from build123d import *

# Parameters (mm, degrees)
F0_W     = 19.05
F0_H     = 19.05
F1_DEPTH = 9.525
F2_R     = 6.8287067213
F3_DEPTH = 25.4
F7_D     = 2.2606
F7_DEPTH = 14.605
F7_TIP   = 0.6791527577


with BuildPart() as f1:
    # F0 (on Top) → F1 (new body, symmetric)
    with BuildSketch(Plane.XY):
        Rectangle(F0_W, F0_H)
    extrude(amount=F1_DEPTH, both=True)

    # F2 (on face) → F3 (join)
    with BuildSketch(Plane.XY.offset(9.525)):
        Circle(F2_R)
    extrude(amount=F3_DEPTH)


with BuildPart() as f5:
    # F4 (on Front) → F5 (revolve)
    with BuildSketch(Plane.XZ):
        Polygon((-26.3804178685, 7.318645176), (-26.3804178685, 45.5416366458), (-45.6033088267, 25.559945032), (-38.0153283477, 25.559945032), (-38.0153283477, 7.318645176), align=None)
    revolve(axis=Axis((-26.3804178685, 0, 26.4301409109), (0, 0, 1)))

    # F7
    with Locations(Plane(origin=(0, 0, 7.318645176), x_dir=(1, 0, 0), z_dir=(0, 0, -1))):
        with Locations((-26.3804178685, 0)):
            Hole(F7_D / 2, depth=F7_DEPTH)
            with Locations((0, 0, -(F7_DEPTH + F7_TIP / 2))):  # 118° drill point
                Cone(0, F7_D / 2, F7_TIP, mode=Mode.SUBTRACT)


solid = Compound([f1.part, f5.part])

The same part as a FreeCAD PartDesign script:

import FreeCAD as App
import Part
import Sketcher

V = App.Vector
Q = App.Units.Quantity


def add_polygon(sketch, points):
    """Adds a closed chain of lines whose ends are joined by coincident constraints."""
    first, n = sketch.GeometryCount, len(points)
    for a, b in zip(points, points[1:] + points[:1]):
        sketch.addGeometry(Part.LineSegment(App.Vector(*a, 0), App.Vector(*b, 0)), False)
    for i in range(n):
        sketch.addConstraint(Sketcher.Constraint("Coincident", first + i, 2, first + (i + 1) % n, 1))

doc = App.newDocument("Part")
params = doc.addObject("Spreadsheet::Sheet", "Params")
for row, (alias, value) in enumerate([
    ("sketch1_width", "0.75 in"),
    ("pad1_length", "0.75 in"),
    ("pad2_length", "1 in"),
    ("revolution_angle", "360 deg"),
    ("sketch4_diameter", "0.089 in"),
    ("hole_diameter", "0.089 in"),
    ("hole_depth", "0.575 in"),
], start=1):
    params.set(f"A{row}", alias)
    params.set(f"B{row}", "=" + value)
    params.setAlias(f"B{row}", alias)

body = doc.addObject("PartDesign::Body", "Body")

# Sketch on XY plane
sketch1 = body.newObject("Sketcher::SketchObject", "Sketch")
sketch1.AttachmentSupport = (doc.getObject("XY_Plane"), [""])
sketch1.MapMode = "FlatFace"
add_polygon(sketch1, [(-10, 10), (-10, -10), (10, -10), (10, 10)])  # lines 0-3
sketch1.addConstraint([
    Sketcher.Constraint("Vertical", 0),
    Sketcher.Constraint("Horizontal", 1),
    Sketcher.Constraint("Vertical", 2),
    Sketcher.Constraint("Horizontal", 3),
    Sketcher.Constraint("Symmetric", 0, 2, 2, 2, -1, 1),
    Sketcher.Constraint("Equal", 3, 0),
    Sketcher.Constraint("DistanceX", 1, 1, 1, 2, Q("0.75 in")),
])
sketch1.setExpression("Constraints[10]", "Params.sketch1_width")
pad1 = body.newObject("PartDesign::Pad", "Pad")
pad1.Profile = sketch1
pad1.setExpression("Length", "Params.pad1_length")
pad1.Midplane = True

# Sketch on XY plane
sketch2 = body.newObject("Sketcher::SketchObject", "Sketch001")
sketch2.AttachmentSupport = (doc.getObject("XY_Plane"), [""])
sketch2.MapMode = "FlatFace"
sketch2.AttachmentOffset = App.Placement(V(0, 0, 0.375 * 25.4), App.Rotation())
sketch2.addGeometry(Part.Circle(V(0, 0, 0), V(0, 0, 1), 7), False)
sketch2.addConstraint([
    Sketcher.Constraint("Coincident", 0, 3, -1, 1),
    Sketcher.Constraint("Diameter", 0, Q("13.657413 mm")),
])
pad2 = body.newObject("PartDesign::Pad", "Pad001")
pad2.Profile = sketch2
pad2.setExpression("Length", "Params.pad2_length")
body2 = doc.addObject("PartDesign::Body", "Body001")

# Sketch on XZ plane
sketch3 = body2.newObject("Sketcher::SketchObject", "Sketch002")
sketch3.AttachmentSupport = (doc.getObject("XZ_Plane001"), [""])
sketch3.MapMode = "FlatFace"
add_polygon(sketch3, [(-26, 7), (-26, 46), (-46, 26), (-38, 26), (-38, 7)])  # lines 0-4
sketch3.addGeometry(Part.LineSegment(V(-26, 7, 0), V(-26, 46, 0)), True)  # axis
sketch3.addConstraint([
    Sketcher.Constraint("Vertical", 0),
    Sketcher.Constraint("Horizontal", 2),
    Sketcher.Constraint("Vertical", 3),
    Sketcher.Constraint("Horizontal", 4),
    Sketcher.Constraint("Vertical", 5),
    Sketcher.Constraint("Coincident", 5, 1, 4, 2),
    Sketcher.Constraint("Equal", 0, 5),
    Sketcher.Constraint("DistanceY", 3, 2, 3, 1, Q("18.2413 mm")),
    Sketcher.Constraint("DistanceX", 2, 1, 2, 2, Q("7.58798 mm")),
    Sketcher.Constraint("DistanceX", 4, 1, 4, 2, Q("11.63491 mm")),
    Sketcher.Constraint("DistanceY", 0, 1, 0, 2, Q("38.222991 mm")),
    Sketcher.Constraint("DistanceX", 1, 2, -1, 1, Q("45.603309 mm")),
    Sketcher.Constraint("DistanceY", -1, 1, 0, 2, Q("45.541637 mm")),
])
revolution = body2.newObject("PartDesign::Revolution", "Revolution")
revolution.Profile = sketch3
revolution.ReferenceAxis = (sketch3, ["Axis0"])
revolution.setExpression("Angle", "Params.revolution_angle")

# Sketch on XY plane
sketch4 = body2.newObject("Sketcher::SketchObject", "Sketch003")
sketch4.AttachmentSupport = (doc.getObject("XY_Plane001"), [""])
sketch4.MapMode = "FlatFace"
sketch4.AttachmentOffset = App.Placement(V(0, 0, 7.318645), App.Rotation())
sketch4.addGeometry(Part.Circle(V(-26.4, 0, 0), V(0, 0, 1), 1.1), False)
sketch4.addConstraint([
    Sketcher.Constraint("PointOnObject", 0, 3, -1),
    Sketcher.Constraint("Diameter", 0, Q("0.089 in")),
    Sketcher.Constraint("DistanceX", 0, 3, -1, 1, Q("26.380418 mm")),
])
sketch4.setExpression("Constraints[1]", "Params.sketch4_diameter")
doc.recompute()
hole = body2.newObject("PartDesign::Hole", "Hole")
hole.Profile = sketch4
hole.ThreadType = "None"
hole.setExpression("Diameter", "Params.hole_diameter")
hole.DepthType = "Dimension"
hole.setExpression("Depth", "Params.hole_depth")
hole.DrillPoint = "Angled"
hole.DrillPointAngle = 118
hole.Reversed = True

doc.recompute()
